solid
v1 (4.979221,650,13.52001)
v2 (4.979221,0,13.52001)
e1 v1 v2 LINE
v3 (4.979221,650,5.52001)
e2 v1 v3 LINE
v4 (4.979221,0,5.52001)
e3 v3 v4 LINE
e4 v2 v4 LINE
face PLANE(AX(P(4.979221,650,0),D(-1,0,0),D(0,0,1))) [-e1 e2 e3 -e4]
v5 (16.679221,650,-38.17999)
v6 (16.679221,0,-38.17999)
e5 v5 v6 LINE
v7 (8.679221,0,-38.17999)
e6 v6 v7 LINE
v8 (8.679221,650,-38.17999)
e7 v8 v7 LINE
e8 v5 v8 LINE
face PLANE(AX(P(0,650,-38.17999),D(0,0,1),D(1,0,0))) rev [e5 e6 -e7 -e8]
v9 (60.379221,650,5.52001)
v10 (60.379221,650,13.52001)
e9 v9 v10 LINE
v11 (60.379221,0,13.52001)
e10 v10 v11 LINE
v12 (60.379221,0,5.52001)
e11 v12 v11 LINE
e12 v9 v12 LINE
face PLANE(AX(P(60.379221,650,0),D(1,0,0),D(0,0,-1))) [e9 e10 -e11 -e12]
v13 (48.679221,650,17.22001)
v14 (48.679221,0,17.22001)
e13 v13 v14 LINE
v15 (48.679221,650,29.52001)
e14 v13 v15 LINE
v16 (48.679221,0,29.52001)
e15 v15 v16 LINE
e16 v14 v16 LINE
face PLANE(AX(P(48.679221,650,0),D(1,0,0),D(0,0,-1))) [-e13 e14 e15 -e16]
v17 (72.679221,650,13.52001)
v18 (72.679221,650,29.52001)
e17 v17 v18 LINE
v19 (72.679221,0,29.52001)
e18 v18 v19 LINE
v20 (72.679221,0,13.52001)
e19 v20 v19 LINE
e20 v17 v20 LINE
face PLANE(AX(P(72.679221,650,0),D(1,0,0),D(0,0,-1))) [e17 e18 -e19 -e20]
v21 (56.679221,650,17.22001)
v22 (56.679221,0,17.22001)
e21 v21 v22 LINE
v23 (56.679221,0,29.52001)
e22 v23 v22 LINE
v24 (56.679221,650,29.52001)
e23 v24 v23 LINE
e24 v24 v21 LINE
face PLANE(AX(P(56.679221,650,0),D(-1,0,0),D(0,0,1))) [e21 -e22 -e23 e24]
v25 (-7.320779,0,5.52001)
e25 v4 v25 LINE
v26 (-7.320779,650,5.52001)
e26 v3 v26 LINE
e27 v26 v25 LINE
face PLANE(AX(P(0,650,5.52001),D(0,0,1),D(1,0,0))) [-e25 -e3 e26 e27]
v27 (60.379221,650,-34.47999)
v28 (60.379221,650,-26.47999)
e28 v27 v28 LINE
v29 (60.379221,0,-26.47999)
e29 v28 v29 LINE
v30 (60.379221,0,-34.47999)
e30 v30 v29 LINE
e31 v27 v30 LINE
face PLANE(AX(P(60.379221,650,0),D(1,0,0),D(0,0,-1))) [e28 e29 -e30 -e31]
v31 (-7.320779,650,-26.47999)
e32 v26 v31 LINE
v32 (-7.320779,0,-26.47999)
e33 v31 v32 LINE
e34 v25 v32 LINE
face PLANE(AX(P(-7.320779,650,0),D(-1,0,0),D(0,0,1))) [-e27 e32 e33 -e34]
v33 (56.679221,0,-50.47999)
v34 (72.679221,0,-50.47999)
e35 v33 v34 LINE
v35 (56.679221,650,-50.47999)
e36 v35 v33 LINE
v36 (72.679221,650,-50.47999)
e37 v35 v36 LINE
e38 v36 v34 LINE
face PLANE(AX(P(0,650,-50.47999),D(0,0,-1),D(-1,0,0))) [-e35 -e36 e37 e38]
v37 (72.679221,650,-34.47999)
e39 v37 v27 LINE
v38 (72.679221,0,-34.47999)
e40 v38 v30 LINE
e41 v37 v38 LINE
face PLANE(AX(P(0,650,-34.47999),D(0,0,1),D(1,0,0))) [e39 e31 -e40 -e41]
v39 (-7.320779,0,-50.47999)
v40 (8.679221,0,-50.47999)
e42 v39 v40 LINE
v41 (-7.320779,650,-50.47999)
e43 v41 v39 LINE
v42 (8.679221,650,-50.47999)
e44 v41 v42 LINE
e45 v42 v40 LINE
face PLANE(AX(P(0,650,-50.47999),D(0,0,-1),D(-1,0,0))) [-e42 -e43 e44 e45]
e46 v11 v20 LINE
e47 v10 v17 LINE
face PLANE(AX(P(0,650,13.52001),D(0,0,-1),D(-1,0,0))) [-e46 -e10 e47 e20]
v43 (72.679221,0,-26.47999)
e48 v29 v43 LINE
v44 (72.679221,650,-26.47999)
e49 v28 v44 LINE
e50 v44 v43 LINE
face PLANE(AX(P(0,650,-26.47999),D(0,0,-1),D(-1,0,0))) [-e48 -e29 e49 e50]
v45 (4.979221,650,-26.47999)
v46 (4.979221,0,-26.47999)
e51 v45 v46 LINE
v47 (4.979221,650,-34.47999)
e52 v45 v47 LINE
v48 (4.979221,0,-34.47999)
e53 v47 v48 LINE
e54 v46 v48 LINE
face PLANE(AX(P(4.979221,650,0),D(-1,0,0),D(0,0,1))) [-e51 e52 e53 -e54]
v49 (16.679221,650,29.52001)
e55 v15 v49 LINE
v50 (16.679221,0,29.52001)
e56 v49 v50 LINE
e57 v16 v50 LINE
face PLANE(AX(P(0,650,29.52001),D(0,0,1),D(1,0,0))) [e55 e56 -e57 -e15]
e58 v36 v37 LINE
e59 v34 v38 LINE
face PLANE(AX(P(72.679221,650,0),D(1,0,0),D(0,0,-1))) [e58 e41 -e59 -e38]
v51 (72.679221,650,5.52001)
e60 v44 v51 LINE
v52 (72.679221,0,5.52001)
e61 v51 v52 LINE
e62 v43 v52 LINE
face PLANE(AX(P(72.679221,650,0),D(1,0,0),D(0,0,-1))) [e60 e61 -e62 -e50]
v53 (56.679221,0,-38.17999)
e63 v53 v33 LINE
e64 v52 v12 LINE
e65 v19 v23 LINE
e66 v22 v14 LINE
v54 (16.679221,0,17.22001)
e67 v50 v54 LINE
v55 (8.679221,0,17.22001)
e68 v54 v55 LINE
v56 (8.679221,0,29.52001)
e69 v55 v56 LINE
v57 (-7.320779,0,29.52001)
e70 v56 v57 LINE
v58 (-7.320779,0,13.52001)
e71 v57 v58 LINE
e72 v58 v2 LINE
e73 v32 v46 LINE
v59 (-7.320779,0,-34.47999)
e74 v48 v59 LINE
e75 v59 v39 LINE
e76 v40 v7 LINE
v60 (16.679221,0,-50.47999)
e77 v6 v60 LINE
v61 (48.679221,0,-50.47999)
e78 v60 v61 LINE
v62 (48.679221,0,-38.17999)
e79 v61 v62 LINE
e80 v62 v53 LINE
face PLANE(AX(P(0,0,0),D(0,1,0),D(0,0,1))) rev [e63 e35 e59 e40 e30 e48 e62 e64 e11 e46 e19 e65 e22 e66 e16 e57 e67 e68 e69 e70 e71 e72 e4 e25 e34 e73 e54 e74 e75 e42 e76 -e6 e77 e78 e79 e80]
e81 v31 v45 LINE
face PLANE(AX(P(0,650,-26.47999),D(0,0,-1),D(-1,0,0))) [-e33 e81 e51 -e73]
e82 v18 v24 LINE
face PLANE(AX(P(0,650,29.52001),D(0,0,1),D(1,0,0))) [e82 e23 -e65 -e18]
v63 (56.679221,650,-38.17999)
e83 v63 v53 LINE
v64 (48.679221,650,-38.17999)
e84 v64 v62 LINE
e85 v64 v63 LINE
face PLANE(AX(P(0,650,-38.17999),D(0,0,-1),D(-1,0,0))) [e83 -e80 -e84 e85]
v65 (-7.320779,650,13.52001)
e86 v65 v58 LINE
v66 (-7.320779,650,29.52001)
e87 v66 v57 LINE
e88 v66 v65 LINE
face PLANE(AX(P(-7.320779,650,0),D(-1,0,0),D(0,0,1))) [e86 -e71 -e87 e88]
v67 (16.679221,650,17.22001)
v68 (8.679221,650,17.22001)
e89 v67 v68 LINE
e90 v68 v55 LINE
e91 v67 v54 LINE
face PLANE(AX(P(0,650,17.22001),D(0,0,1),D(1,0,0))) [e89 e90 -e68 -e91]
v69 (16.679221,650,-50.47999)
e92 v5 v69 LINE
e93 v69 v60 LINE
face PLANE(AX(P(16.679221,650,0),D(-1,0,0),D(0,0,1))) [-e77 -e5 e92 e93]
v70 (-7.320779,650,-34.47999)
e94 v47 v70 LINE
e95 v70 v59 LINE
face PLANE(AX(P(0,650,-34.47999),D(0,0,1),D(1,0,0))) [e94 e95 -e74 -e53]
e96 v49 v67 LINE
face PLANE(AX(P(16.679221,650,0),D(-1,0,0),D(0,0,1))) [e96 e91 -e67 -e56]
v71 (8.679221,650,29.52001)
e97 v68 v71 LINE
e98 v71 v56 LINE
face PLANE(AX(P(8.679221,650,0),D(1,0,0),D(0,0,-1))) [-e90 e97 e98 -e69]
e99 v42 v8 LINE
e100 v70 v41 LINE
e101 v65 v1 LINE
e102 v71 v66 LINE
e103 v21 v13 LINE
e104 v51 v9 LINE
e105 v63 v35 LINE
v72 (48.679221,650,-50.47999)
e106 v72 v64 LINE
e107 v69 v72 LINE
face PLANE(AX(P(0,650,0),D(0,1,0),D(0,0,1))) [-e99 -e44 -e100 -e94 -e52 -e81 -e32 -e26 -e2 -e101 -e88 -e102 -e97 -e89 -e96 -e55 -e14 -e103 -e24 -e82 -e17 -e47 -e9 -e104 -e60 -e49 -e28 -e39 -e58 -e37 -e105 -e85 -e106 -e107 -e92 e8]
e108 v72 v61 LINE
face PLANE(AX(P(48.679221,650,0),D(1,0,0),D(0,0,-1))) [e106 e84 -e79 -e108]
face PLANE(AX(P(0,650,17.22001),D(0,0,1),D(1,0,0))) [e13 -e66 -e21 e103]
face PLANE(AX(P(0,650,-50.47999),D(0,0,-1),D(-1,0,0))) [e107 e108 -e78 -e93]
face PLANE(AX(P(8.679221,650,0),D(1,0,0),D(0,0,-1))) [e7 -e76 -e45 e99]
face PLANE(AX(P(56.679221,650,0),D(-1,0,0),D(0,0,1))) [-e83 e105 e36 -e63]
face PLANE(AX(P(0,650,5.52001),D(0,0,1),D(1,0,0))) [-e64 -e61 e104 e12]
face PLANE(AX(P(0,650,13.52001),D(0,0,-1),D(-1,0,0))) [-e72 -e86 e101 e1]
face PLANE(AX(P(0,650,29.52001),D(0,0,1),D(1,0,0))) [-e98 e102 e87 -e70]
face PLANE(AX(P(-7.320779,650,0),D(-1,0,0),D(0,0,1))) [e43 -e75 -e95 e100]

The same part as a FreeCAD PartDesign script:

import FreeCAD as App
import Part
import Sketcher
from FreeCAD import Vector

doc = App.newDocument("Part")
body = doc.addObject("PartDesign::Body", "Body")

sketch1 = body.newObject("Sketcher::SketchObject", "Sketch")
sketch1.AttachmentSupport = (doc.getObject("XZ_Plane"), [""])
sketch1.MapMode = "FlatFace"
sketch1.addGeometry([
    Part.LineSegment(Vector(-7.320779, -50.47999, 0), Vector(-7.320779, -34.47999, 0)),
    Part.LineSegment(Vector(-7.320779, -34.47999, 0), Vector(4.979221, -34.47999, 0)),
    Part.LineSegment(Vector(4.979221, -34.47999, 0), Vector(4.979221, -26.47999, 0)),
    Part.LineSegment(Vector(4.979221, -26.47999, 0), Vector(-7.320779, -26.47999, 0)),
    Part.LineSegment(Vector(-7.320779, -26.47999, 0), Vector(-7.320779, 5.52001, 0)),
    Part.LineSegment(Vector(-7.320779, 5.52001, 0), Vector(4.979221, 5.52001, 0)),
    Part.LineSegment(Vector(4.979221, 5.52001, 0), Vector(4.979221, 13.52001, 0)),
    Part.LineSegment(Vector(4.979221, 13.52001, 0), Vector(-7.320779, 13.52001, 0)),
    Part.LineSegment(Vector(-7.320779, 13.52001, 0), Vector(-7.320779, 29.52001, 0)),
    Part.LineSegment(Vector(-7.320779, 29.52001, 0), Vector(8.679221, 29.52001, 0)),
    Part.LineSegment(Vector(8.679221, 29.52001, 0), Vector(8.679221, 17.22001, 0)),
    Part.LineSegment(Vector(8.679221, 17.22001, 0), Vector(16.679221, 17.22001, 0)),
    Part.LineSegment(Vector(16.679221, 17.22001, 0), Vector(16.679221, 29.52001, 0)),
    Part.LineSegment(Vector(16.679221, 29.52001, 0), Vector(48.679221, 29.52001, 0)),
    Part.LineSegment(Vector(48.679221, 29.52001, 0), Vector(48.679221, 17.22001, 0)),
    Part.LineSegment(Vector(48.679221, 17.22001, 0), Vector(56.679221, 17.22001, 0)),
    Part.LineSegment(Vector(56.679221, 17.22001, 0), Vector(56.679221, 29.52001, 0)),
    Part.LineSegment(Vector(56.679221, 29.52001, 0), Vector(72.679221, 29.52001, 0)),
    Part.LineSegment(Vector(72.679221, 29.52001, 0), Vector(72.679221, 13.52001, 0)),
    Part.LineSegment(Vector(72.679221, 13.52001, 0), Vector(60.379221, 13.52001, 0)),
    Part.LineSegment(Vector(60.379221, 13.52001, 0), Vector(60.379221, 5.52001, 0)),
    Part.LineSegment(Vector(60.379221, 5.52001, 0), Vector(72.679221, 5.52001, 0)),
    Part.LineSegment(Vector(72.679221, 5.52001, 0), Vector(72.679221, -26.47999, 0)),
    Part.LineSegment(Vector(72.679221, -26.47999, 0), Vector(60.379221, -26.47999, 0)),
    Part.LineSegment(Vector(60.379221, -26.47999, 0), Vector(60.379221, -34.47999, 0)),
    Part.LineSegment(Vector(60.379221, -34.47999, 0), Vector(72.679221, -34.47999, 0)),
    Part.LineSegment(Vector(72.679221, -34.47999, 0), Vector(72.679221, -50.47999, 0)),
    Part.LineSegment(Vector(72.679221, -50.47999, 0), Vector(56.679221, -50.47999, 0)),
    Part.LineSegment(Vector(56.679221, -50.47999, 0), Vector(56.679221, -38.17999, 0)),
    Part.LineSegment(Vector(56.679221, -38.17999, 0), Vector(48.679221, -38.17999, 0)),
    Part.LineSegment(Vector(48.679221, -38.17999, 0), Vector(48.679221, -50.47999, 0)),
    Part.LineSegment(Vector(48.679221, -50.47999, 0), Vector(16.679221, -50.47999, 0)),
    Part.LineSegment(Vector(16.679221, -50.47999, 0), Vector(16.679221, -38.17999, 0)),
    Part.LineSegment(Vector(16.679221, -38.17999, 0), Vector(8.679221, -38.17999, 0)),
    Part.LineSegment(Vector(8.679221, -38.17999, 0), Vector(8.679221, -50.47999, 0)),
    Part.LineSegment(Vector(8.679221, -50.47999, 0), Vector(-7.320779, -50.47999, 0)),
], False)
sketch1.addConstraint([
    Sketcher.Constraint("Coincident", 0, 2, 1, 1),
    Sketcher.Constraint("Coincident", 1, 2, 2, 1),
    Sketcher.Constraint("Coincident", 2, 2, 3, 1),
    Sketcher.Constraint("Coincident", 3, 2, 4, 1),
    Sketcher.Constraint("Coincident", 4, 2, 5, 1),
    Sketcher.Constraint("Coincident", 5, 2, 6, 1),
    Sketcher.Constraint("Coincident", 6, 2, 7, 1),
    Sketcher.Constraint("Coincident", 7, 2, 8, 1),
    Sketcher.Constraint("Coincident", 8, 2, 9, 1),
    Sketcher.Constraint("Coincident", 9, 2, 10, 1),
    Sketcher.Constraint("Coincident", 10, 2, 11, 1),
    Sketcher.Constraint("Coincident", 11, 2, 12, 1),
    Sketcher.Constraint("Coincident", 12, 2, 13, 1),
    Sketcher.Constraint("Coincident", 13, 2, 14, 1),
    Sketcher.Constraint("Coincident", 14, 2, 15, 1),
    Sketcher.Constraint("Coincident", 15, 2, 16, 1),
    Sketcher.Constraint("Coincident", 16, 2, 17, 1),
    Sketcher.Constraint("Coincident", 17, 2, 18, 1),
    Sketcher.Constraint("Coincident", 18, 2, 19, 1),
    Sketcher.Constraint("Coincident", 19, 2, 20, 1),
    Sketcher.Constraint("Coincident", 20, 2, 21, 1),
    Sketcher.Constraint("Coincident", 21, 2, 22, 1),
    Sketcher.Constraint("Coincident", 22, 2, 23, 1),
    Sketcher.Constraint("Coincident", 23, 2, 24, 1),
    Sketcher.Constraint("Coincident", 24, 2, 25, 1),
    Sketcher.Constraint("Coincident", 25, 2, 26, 1),
    Sketcher.Constraint("Coincident", 26, 2, 27, 1),
    Sketcher.Constraint("Coincident", 27, 2, 28, 1),
    Sketcher.Constraint("Coincident", 28, 2, 29, 1),
    Sketcher.Constraint("Coincident", 29, 2, 30, 1),
    Sketcher.Constraint("Coincident", 30, 2, 31, 1),
    Sketcher.Constraint("Coincident", 31, 2, 32, 1),
    Sketcher.Constraint("Coincident", 32, 2, 33, 1),
    Sketcher.Constraint("Coincident", 33, 2, 34, 1),
    Sketcher.Constraint("Coincident", 34, 2, 35, 1),
    Sketcher.Constraint("Coincident", 35, 2, 0, 1),
    Sketcher.Constraint("Vertical", 0),
    Sketcher.Constraint("Horizontal", 1),
    Sketcher.Constraint("Vertical", 2),
    Sketcher.Constraint("Horizontal", 3),
    Sketcher.Constraint("Vertical", 4),
    Sketcher.Constraint("Horizontal", 5),
    Sketcher.Constraint("Vertical", 6),
    Sketcher.Constraint("Horizontal", 7),
    Sketcher.Constraint("Vertical", 8),
    Sketcher.Constraint("Horizontal", 9),
    Sketcher.Constraint("Vertical", 10),
    Sketcher.Constraint("Horizontal", 11),
    Sketcher.Constraint("Vertical", 12),
    Sketcher.Constraint("Horizontal", 13),
    Sketcher.Constraint("Vertical", 14),
    Sketcher.Constraint("Horizontal", 15),
    Sketcher.Constraint("Vertical", 16),
    Sketcher.Constraint("Horizontal", 17),
    Sketcher.Constraint("Vertical", 18),
    Sketcher.Constraint("Horizontal", 19),
    Sketcher.Constraint("Vertical", 20),
    Sketcher.Constraint("Horizontal", 21),
    Sketcher.Constraint("Vertical", 22),
    Sketcher.Constraint("Horizontal", 23),
    Sketcher.Constraint("Vertical", 24),
    Sketcher.Constraint("Horizontal", 25),
    Sketcher.Constraint("Vertical", 26),
    Sketcher.Constraint("Horizontal", 27),
    Sketcher.Constraint("Vertical", 28),
    Sketcher.Constraint("Horizontal", 29),
    Sketcher.Constraint("Vertical", 30),
    Sketcher.Constraint("Horizontal", 31),
    Sketcher.Constraint("Vertical", 32),
    Sketcher.Constraint("Horizontal", 33),
    Sketcher.Constraint("Vertical", 34),
    Sketcher.Constraint("Horizontal", 35),
    Sketcher.Constraint("Horizontal", 9, 2, 12, 2),
    Sketcher.Constraint("Horizontal", 11, 2, 14, 2),
    Sketcher.Constraint("Horizontal", 13, 2, 16, 2),
    Sketcher.Constraint("Horizontal", 7, 2, 18, 2),
    Sketcher.Constraint("Horizontal", 5, 2, 20, 2),
    Sketcher.Constraint("Horizontal", 3, 2, 22, 2),
    Sketcher.Constraint("Horizontal", 1, 2, 24, 2),
    Sketcher.Constraint("Horizontal", 27, 2, 30, 2),
    Sketcher.Constraint("Horizontal", 29, 2, 32, 2),
    Sketcher.Constraint("Horizontal", 31, 2, 34, 2),
    Sketcher.Constraint("Vertical", 0, 2, 3, 2),
    Sketcher.Constraint("Vertical", 2, 2, 5, 2),
    Sketcher.Constraint("Vertical", 4, 2, 7, 2),
    Sketcher.Constraint("Vertical", 18, 2, 21, 2),
    Sketcher.Constraint("Vertical", 20, 2, 23, 2),
    Sketcher.Constraint("Vertical", 22, 2, 25, 2),
    Sketcher.Constraint("Vertical", 16, 2, 27, 2),
    Sketcher.Constraint("Vertical", 14, 2, 29, 2),
    Sketcher.Constraint("Vertical", 12, 2, 31, 2),
    Sketcher.Constraint("Vertical", 10, 2, 33, 2),
    Sketcher.Constraint("Equal", 11, 15),
    Sketcher.Constraint("Equal", 9, 17),
    Sketcher.Constraint("Equal", 7, 19),
    Sketcher.Constraint("Equal", 35, 0),
    Sketcher.Constraint("Equal", 33, 2),
    Sketcher.Constraint("Equal", 31, 4),
    Sketcher.Constraint("Equal", 2, 6),
    Sketcher.Constraint("Equal", 0, 8),
    Sketcher.Constraint("Equal", 25, 10),
    Sketcher.Constraint("Equal", 16, 28),
    Sketcher.Constraint("DistanceX", 9, 1, 9, 2, 16.0),
    Sketcher.Constraint("DistanceX", 11, 1, 11, 2, 8.0),
    Sketcher.Constraint("DistanceX", 13, 1, 13, 2, 32.0),
    Sketcher.Constraint("DistanceX", 1, 1, 1, 2, 12.3),
    Sketcher.Constraint("DistanceX", 0, 2, -1, 1, 7.320779),
    Sketcher.Constraint("DistanceY", 0, 2, -1, 1, 34.47999),
])
pad1 = body.newObject("PartDesign::Pad", "Pad")
pad1.Profile = sketch1
pad1.Length = 650
pad1.Reversed = True

doc.recompute()
